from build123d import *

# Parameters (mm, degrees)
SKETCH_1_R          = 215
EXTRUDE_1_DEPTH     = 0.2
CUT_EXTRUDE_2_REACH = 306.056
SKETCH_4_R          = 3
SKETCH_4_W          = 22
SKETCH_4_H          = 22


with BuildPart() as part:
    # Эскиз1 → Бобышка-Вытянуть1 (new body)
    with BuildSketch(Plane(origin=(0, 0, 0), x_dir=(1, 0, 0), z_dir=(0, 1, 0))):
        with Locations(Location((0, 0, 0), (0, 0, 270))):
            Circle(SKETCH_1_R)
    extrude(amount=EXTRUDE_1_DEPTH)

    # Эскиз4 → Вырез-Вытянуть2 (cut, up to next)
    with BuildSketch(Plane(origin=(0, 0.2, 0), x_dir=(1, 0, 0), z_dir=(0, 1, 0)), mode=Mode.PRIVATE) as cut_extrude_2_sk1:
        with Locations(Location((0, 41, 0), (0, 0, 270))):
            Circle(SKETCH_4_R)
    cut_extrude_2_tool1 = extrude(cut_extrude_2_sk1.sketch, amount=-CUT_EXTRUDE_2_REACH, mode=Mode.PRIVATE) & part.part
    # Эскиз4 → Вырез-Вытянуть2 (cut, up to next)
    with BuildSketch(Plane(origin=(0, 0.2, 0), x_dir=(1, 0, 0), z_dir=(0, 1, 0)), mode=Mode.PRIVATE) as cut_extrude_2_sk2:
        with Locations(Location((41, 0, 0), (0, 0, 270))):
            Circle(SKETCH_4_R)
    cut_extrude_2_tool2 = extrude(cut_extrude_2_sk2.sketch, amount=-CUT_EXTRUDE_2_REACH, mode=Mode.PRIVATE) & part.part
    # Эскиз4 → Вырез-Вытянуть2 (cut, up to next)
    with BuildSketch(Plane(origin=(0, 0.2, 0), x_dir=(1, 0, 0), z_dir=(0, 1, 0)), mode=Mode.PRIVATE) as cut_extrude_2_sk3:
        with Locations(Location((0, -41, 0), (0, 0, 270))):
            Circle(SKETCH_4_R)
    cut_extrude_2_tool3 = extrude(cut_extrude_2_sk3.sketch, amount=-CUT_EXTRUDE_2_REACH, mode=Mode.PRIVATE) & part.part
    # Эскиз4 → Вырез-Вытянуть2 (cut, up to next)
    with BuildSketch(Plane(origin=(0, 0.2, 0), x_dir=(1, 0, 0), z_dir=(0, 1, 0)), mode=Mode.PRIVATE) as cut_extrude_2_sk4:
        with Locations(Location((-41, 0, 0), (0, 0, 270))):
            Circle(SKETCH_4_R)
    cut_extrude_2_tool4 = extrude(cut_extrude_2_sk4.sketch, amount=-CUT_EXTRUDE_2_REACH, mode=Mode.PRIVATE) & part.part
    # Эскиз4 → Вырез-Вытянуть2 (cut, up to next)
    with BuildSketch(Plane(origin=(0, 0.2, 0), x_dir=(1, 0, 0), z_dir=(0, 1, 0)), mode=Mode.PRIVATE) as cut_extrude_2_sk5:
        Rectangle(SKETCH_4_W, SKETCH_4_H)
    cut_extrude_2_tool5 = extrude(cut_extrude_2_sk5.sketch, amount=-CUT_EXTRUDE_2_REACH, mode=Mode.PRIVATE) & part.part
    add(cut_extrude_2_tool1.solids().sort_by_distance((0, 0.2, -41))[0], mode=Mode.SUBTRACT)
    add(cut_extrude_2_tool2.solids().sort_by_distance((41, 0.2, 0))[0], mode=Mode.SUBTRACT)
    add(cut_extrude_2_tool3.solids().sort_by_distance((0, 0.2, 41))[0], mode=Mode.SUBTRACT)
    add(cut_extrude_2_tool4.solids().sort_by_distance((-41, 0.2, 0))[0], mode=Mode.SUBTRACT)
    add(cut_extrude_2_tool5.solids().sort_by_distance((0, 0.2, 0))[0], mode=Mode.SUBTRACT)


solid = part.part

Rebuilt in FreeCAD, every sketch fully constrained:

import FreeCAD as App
import Part
import Sketcher
from FreeCAD import Vector

doc = App.newDocument("Part")
body = doc.addObject("PartDesign::Body", "Body")

# Sketch on XZ plane
sketch1 = doc.addObject("Sketcher::SketchObject", "Sketch")
body.addObject(sketch1)
sketch1.AttachmentSupport = (doc.XZ_Plane, [""])
sketch1.MapMode = "FlatFace"
sketch1.addGeometry(Part.Circle(Vector(0, 0, 0), Vector(0, 0, 1), 215), False)
sketch1.addConstraint(Sketcher.Constraint("Coincident", 0, 3, -1, 1))
sketch1.addConstraint(Sketcher.Constraint("Diameter", 0, 430.0))
pad1 = doc.addObject("PartDesign::Pad", "Pad")
body.addObject(pad1)
pad1.Profile = sketch1
pad1.Length = 0.2
pad1.Reversed = True

# Sketch on XZ plane
sketch2 = doc.addObject("Sketcher::SketchObject", "Sketch001")
body.addObject(sketch2)
sketch2.AttachmentSupport = (doc.XZ_Plane, [""])
sketch2.MapMode = "FlatFace"
sketch2.AttachmentOffset = App.Placement(Vector(0, 0, -0.2), App.Rotation())
sketch2.addGeometry(Part.Circle(Vector(0, -41, 0), Vector(0, 0, 1), 3), False)
sketch2.addConstraint(Sketcher.Constraint("PointOnObject", 0, 3, -2))
sketch2.addConstraint(Sketcher.Constraint("Diameter", 0, 6.0))
sketch2.addConstraint(Sketcher.Constraint("DistanceY", 0, 3, -1, 1, 41.0))
pocket1 = doc.addObject("PartDesign::Pocket", "Pocket")
body.addObject(pocket1)
pocket1.Profile = sketch2
pocket1.Type = "UpToFirst"
pocket1.Reversed = True

# Sketch on XZ plane
sketch3 = doc.addObject("Sketcher::SketchObject", "Sketch002")
body.addObject(sketch3)
sketch3.AttachmentSupport = (doc.XZ_Plane, [""])
sketch3.MapMode = "FlatFace"
sketch3.AttachmentOffset = App.Placement(Vector(0, 0, -0.2), App.Rotation())
sketch3.addGeometry(Part.Circle(Vector(41, 0, 0), Vector(0, 0, 1), 3), False)
sketch3.addConstraint(Sketcher.Constraint("PointOnObject", 0, 3, -1))
sketch3.addConstraint(Sketcher.Constraint("Diameter", 0, 6.0))
sketch3.addConstraint(Sketcher.Constraint("DistanceX", -1, 1, 0, 3, 41.0))
pocket2 = doc.addObject("PartDesign::Pocket", "Pocket001")
body.addObject(pocket2)
pocket2.Profile = sketch3
pocket2.Type = "UpToFirst"
pocket2.Reversed = True

# Sketch on XZ plane
sketch4 = doc.addObject("Sketcher::SketchObject", "Sketch003")
body.addObject(sketch4)
sketch4.AttachmentSupport = (doc.XZ_Plane, [""])
sketch4.MapMode = "FlatFace"
sketch4.AttachmentOffset = App.Placement(Vector(0, 0, -0.2), App.Rotation())
sketch4.addGeometry(Part.Circle(Vector(0, 41, 0), Vector(0, 0, 1), 3), False)
sketch4.addConstraint(Sketcher.Constraint("PointOnObject", 0, 3, -2))
sketch4.addConstraint(Sketcher.Constraint("Diameter", 0, 6.0))
sketch4.addConstraint(Sketcher.Constraint("DistanceY", -1, 1, 0, 3, 41.0))
pocket3 = doc.addObject("PartDesign::Pocket", "Pocket002")
body.addObject(pocket3)
pocket3.Profile = sketch4
pocket3.Type = "UpToFirst"
pocket3.Reversed = True

# Sketch on XZ plane
sketch5 = doc.addObject("Sketcher::SketchObject", "Sketch004")
body.addObject(sketch5)
sketch5.AttachmentSupport = (doc.XZ_Plane, [""])
sketch5.MapMode = "FlatFace"
sketch5.AttachmentOffset = App.Placement(Vector(0, 0, -0.2), App.Rotation())
sketch5.addGeometry(Part.Circle(Vector(-41, 0, 0), Vector(0, 0, 1), 3), False)
sketch5.addConstraint(Sketcher.Constraint("PointOnObject", 0, 3, -1))
sketch5.addConstraint(Sketcher.Constraint("Diameter", 0, 6.0))
sketch5.addConstraint(Sketcher.Constraint("DistanceX", 0, 3, -1, 1, 41.0))
pocket4 = doc.addObject("PartDesign::Pocket", "Pocket003")
body.addObject(pocket4)
pocket4.Profile = sketch5
pocket4.Type = "UpToFirst"
pocket4.Reversed = True

# Sketch on XZ plane
sketch6 = doc.addObject("Sketcher::SketchObject", "Sketch005")
body.addObject(sketch6)
sketch6.AttachmentSupport = (doc.XZ_Plane, [""])
sketch6.MapMode = "FlatFace"
sketch6.AttachmentOffset = App.Placement(Vector(0, 0, -0.2), App.Rotation())
sketch6.addGeometry(Part.LineSegment(Vector(-11, -11, 0), Vector(-11, 11, 0)), False)
sketch6.addGeometry(Part.LineSegment(Vector(-11, 11, 0), Vector(11, 11, 0)), False)
sketch6.addGeometry(Part.LineSegment(Vector(11, 11, 0), Vector(11, -11, 0)), False)
sketch6.addGeometry(Part.LineSegment(Vector(11, -11, 0), Vector(-11, -11, 0)), False)
sketch6.addConstraint(Sketcher.Constraint("Coincident", 0, 2, 1, 1))
sketch6.addConstraint(Sketcher.Constraint("Coincident", 1, 2, 2, 1))
sketch6.addConstraint(Sketcher.Constraint("Coincident", 2, 2, 3, 1))
sketch6.addConstraint(Sketcher.Constraint("Coincident", 3, 2, 0, 1))
sketch6.addConstraint(Sketcher.Constraint("Vertical", 0))
sketch6.addConstraint(Sketcher.Constraint("Horizontal", 1))
sketch6.addConstraint(Sketcher.Constraint("Vertical", 2))
sketch6.addConstraint(Sketcher.Constraint("Horizontal", 3))
sketch6.addConstraint(Sketcher.Constraint("Symmetric", 0, 2, 2, 2, -1, 1))
sketch6.addConstraint(Sketcher.Constraint("Equal", 3, 0))
sketch6.addConstraint(Sketcher.Constraint("DistanceX", 1, 1, 1, 2, 22.0))
pocket5 = doc.addObject("PartDesign::Pocket", "Pocket004")
body.addObject(pocket5)
pocket5.Profile = sketch6
pocket5.Type = "UpToFirst"
pocket5.Reversed = True

doc.recompute()
